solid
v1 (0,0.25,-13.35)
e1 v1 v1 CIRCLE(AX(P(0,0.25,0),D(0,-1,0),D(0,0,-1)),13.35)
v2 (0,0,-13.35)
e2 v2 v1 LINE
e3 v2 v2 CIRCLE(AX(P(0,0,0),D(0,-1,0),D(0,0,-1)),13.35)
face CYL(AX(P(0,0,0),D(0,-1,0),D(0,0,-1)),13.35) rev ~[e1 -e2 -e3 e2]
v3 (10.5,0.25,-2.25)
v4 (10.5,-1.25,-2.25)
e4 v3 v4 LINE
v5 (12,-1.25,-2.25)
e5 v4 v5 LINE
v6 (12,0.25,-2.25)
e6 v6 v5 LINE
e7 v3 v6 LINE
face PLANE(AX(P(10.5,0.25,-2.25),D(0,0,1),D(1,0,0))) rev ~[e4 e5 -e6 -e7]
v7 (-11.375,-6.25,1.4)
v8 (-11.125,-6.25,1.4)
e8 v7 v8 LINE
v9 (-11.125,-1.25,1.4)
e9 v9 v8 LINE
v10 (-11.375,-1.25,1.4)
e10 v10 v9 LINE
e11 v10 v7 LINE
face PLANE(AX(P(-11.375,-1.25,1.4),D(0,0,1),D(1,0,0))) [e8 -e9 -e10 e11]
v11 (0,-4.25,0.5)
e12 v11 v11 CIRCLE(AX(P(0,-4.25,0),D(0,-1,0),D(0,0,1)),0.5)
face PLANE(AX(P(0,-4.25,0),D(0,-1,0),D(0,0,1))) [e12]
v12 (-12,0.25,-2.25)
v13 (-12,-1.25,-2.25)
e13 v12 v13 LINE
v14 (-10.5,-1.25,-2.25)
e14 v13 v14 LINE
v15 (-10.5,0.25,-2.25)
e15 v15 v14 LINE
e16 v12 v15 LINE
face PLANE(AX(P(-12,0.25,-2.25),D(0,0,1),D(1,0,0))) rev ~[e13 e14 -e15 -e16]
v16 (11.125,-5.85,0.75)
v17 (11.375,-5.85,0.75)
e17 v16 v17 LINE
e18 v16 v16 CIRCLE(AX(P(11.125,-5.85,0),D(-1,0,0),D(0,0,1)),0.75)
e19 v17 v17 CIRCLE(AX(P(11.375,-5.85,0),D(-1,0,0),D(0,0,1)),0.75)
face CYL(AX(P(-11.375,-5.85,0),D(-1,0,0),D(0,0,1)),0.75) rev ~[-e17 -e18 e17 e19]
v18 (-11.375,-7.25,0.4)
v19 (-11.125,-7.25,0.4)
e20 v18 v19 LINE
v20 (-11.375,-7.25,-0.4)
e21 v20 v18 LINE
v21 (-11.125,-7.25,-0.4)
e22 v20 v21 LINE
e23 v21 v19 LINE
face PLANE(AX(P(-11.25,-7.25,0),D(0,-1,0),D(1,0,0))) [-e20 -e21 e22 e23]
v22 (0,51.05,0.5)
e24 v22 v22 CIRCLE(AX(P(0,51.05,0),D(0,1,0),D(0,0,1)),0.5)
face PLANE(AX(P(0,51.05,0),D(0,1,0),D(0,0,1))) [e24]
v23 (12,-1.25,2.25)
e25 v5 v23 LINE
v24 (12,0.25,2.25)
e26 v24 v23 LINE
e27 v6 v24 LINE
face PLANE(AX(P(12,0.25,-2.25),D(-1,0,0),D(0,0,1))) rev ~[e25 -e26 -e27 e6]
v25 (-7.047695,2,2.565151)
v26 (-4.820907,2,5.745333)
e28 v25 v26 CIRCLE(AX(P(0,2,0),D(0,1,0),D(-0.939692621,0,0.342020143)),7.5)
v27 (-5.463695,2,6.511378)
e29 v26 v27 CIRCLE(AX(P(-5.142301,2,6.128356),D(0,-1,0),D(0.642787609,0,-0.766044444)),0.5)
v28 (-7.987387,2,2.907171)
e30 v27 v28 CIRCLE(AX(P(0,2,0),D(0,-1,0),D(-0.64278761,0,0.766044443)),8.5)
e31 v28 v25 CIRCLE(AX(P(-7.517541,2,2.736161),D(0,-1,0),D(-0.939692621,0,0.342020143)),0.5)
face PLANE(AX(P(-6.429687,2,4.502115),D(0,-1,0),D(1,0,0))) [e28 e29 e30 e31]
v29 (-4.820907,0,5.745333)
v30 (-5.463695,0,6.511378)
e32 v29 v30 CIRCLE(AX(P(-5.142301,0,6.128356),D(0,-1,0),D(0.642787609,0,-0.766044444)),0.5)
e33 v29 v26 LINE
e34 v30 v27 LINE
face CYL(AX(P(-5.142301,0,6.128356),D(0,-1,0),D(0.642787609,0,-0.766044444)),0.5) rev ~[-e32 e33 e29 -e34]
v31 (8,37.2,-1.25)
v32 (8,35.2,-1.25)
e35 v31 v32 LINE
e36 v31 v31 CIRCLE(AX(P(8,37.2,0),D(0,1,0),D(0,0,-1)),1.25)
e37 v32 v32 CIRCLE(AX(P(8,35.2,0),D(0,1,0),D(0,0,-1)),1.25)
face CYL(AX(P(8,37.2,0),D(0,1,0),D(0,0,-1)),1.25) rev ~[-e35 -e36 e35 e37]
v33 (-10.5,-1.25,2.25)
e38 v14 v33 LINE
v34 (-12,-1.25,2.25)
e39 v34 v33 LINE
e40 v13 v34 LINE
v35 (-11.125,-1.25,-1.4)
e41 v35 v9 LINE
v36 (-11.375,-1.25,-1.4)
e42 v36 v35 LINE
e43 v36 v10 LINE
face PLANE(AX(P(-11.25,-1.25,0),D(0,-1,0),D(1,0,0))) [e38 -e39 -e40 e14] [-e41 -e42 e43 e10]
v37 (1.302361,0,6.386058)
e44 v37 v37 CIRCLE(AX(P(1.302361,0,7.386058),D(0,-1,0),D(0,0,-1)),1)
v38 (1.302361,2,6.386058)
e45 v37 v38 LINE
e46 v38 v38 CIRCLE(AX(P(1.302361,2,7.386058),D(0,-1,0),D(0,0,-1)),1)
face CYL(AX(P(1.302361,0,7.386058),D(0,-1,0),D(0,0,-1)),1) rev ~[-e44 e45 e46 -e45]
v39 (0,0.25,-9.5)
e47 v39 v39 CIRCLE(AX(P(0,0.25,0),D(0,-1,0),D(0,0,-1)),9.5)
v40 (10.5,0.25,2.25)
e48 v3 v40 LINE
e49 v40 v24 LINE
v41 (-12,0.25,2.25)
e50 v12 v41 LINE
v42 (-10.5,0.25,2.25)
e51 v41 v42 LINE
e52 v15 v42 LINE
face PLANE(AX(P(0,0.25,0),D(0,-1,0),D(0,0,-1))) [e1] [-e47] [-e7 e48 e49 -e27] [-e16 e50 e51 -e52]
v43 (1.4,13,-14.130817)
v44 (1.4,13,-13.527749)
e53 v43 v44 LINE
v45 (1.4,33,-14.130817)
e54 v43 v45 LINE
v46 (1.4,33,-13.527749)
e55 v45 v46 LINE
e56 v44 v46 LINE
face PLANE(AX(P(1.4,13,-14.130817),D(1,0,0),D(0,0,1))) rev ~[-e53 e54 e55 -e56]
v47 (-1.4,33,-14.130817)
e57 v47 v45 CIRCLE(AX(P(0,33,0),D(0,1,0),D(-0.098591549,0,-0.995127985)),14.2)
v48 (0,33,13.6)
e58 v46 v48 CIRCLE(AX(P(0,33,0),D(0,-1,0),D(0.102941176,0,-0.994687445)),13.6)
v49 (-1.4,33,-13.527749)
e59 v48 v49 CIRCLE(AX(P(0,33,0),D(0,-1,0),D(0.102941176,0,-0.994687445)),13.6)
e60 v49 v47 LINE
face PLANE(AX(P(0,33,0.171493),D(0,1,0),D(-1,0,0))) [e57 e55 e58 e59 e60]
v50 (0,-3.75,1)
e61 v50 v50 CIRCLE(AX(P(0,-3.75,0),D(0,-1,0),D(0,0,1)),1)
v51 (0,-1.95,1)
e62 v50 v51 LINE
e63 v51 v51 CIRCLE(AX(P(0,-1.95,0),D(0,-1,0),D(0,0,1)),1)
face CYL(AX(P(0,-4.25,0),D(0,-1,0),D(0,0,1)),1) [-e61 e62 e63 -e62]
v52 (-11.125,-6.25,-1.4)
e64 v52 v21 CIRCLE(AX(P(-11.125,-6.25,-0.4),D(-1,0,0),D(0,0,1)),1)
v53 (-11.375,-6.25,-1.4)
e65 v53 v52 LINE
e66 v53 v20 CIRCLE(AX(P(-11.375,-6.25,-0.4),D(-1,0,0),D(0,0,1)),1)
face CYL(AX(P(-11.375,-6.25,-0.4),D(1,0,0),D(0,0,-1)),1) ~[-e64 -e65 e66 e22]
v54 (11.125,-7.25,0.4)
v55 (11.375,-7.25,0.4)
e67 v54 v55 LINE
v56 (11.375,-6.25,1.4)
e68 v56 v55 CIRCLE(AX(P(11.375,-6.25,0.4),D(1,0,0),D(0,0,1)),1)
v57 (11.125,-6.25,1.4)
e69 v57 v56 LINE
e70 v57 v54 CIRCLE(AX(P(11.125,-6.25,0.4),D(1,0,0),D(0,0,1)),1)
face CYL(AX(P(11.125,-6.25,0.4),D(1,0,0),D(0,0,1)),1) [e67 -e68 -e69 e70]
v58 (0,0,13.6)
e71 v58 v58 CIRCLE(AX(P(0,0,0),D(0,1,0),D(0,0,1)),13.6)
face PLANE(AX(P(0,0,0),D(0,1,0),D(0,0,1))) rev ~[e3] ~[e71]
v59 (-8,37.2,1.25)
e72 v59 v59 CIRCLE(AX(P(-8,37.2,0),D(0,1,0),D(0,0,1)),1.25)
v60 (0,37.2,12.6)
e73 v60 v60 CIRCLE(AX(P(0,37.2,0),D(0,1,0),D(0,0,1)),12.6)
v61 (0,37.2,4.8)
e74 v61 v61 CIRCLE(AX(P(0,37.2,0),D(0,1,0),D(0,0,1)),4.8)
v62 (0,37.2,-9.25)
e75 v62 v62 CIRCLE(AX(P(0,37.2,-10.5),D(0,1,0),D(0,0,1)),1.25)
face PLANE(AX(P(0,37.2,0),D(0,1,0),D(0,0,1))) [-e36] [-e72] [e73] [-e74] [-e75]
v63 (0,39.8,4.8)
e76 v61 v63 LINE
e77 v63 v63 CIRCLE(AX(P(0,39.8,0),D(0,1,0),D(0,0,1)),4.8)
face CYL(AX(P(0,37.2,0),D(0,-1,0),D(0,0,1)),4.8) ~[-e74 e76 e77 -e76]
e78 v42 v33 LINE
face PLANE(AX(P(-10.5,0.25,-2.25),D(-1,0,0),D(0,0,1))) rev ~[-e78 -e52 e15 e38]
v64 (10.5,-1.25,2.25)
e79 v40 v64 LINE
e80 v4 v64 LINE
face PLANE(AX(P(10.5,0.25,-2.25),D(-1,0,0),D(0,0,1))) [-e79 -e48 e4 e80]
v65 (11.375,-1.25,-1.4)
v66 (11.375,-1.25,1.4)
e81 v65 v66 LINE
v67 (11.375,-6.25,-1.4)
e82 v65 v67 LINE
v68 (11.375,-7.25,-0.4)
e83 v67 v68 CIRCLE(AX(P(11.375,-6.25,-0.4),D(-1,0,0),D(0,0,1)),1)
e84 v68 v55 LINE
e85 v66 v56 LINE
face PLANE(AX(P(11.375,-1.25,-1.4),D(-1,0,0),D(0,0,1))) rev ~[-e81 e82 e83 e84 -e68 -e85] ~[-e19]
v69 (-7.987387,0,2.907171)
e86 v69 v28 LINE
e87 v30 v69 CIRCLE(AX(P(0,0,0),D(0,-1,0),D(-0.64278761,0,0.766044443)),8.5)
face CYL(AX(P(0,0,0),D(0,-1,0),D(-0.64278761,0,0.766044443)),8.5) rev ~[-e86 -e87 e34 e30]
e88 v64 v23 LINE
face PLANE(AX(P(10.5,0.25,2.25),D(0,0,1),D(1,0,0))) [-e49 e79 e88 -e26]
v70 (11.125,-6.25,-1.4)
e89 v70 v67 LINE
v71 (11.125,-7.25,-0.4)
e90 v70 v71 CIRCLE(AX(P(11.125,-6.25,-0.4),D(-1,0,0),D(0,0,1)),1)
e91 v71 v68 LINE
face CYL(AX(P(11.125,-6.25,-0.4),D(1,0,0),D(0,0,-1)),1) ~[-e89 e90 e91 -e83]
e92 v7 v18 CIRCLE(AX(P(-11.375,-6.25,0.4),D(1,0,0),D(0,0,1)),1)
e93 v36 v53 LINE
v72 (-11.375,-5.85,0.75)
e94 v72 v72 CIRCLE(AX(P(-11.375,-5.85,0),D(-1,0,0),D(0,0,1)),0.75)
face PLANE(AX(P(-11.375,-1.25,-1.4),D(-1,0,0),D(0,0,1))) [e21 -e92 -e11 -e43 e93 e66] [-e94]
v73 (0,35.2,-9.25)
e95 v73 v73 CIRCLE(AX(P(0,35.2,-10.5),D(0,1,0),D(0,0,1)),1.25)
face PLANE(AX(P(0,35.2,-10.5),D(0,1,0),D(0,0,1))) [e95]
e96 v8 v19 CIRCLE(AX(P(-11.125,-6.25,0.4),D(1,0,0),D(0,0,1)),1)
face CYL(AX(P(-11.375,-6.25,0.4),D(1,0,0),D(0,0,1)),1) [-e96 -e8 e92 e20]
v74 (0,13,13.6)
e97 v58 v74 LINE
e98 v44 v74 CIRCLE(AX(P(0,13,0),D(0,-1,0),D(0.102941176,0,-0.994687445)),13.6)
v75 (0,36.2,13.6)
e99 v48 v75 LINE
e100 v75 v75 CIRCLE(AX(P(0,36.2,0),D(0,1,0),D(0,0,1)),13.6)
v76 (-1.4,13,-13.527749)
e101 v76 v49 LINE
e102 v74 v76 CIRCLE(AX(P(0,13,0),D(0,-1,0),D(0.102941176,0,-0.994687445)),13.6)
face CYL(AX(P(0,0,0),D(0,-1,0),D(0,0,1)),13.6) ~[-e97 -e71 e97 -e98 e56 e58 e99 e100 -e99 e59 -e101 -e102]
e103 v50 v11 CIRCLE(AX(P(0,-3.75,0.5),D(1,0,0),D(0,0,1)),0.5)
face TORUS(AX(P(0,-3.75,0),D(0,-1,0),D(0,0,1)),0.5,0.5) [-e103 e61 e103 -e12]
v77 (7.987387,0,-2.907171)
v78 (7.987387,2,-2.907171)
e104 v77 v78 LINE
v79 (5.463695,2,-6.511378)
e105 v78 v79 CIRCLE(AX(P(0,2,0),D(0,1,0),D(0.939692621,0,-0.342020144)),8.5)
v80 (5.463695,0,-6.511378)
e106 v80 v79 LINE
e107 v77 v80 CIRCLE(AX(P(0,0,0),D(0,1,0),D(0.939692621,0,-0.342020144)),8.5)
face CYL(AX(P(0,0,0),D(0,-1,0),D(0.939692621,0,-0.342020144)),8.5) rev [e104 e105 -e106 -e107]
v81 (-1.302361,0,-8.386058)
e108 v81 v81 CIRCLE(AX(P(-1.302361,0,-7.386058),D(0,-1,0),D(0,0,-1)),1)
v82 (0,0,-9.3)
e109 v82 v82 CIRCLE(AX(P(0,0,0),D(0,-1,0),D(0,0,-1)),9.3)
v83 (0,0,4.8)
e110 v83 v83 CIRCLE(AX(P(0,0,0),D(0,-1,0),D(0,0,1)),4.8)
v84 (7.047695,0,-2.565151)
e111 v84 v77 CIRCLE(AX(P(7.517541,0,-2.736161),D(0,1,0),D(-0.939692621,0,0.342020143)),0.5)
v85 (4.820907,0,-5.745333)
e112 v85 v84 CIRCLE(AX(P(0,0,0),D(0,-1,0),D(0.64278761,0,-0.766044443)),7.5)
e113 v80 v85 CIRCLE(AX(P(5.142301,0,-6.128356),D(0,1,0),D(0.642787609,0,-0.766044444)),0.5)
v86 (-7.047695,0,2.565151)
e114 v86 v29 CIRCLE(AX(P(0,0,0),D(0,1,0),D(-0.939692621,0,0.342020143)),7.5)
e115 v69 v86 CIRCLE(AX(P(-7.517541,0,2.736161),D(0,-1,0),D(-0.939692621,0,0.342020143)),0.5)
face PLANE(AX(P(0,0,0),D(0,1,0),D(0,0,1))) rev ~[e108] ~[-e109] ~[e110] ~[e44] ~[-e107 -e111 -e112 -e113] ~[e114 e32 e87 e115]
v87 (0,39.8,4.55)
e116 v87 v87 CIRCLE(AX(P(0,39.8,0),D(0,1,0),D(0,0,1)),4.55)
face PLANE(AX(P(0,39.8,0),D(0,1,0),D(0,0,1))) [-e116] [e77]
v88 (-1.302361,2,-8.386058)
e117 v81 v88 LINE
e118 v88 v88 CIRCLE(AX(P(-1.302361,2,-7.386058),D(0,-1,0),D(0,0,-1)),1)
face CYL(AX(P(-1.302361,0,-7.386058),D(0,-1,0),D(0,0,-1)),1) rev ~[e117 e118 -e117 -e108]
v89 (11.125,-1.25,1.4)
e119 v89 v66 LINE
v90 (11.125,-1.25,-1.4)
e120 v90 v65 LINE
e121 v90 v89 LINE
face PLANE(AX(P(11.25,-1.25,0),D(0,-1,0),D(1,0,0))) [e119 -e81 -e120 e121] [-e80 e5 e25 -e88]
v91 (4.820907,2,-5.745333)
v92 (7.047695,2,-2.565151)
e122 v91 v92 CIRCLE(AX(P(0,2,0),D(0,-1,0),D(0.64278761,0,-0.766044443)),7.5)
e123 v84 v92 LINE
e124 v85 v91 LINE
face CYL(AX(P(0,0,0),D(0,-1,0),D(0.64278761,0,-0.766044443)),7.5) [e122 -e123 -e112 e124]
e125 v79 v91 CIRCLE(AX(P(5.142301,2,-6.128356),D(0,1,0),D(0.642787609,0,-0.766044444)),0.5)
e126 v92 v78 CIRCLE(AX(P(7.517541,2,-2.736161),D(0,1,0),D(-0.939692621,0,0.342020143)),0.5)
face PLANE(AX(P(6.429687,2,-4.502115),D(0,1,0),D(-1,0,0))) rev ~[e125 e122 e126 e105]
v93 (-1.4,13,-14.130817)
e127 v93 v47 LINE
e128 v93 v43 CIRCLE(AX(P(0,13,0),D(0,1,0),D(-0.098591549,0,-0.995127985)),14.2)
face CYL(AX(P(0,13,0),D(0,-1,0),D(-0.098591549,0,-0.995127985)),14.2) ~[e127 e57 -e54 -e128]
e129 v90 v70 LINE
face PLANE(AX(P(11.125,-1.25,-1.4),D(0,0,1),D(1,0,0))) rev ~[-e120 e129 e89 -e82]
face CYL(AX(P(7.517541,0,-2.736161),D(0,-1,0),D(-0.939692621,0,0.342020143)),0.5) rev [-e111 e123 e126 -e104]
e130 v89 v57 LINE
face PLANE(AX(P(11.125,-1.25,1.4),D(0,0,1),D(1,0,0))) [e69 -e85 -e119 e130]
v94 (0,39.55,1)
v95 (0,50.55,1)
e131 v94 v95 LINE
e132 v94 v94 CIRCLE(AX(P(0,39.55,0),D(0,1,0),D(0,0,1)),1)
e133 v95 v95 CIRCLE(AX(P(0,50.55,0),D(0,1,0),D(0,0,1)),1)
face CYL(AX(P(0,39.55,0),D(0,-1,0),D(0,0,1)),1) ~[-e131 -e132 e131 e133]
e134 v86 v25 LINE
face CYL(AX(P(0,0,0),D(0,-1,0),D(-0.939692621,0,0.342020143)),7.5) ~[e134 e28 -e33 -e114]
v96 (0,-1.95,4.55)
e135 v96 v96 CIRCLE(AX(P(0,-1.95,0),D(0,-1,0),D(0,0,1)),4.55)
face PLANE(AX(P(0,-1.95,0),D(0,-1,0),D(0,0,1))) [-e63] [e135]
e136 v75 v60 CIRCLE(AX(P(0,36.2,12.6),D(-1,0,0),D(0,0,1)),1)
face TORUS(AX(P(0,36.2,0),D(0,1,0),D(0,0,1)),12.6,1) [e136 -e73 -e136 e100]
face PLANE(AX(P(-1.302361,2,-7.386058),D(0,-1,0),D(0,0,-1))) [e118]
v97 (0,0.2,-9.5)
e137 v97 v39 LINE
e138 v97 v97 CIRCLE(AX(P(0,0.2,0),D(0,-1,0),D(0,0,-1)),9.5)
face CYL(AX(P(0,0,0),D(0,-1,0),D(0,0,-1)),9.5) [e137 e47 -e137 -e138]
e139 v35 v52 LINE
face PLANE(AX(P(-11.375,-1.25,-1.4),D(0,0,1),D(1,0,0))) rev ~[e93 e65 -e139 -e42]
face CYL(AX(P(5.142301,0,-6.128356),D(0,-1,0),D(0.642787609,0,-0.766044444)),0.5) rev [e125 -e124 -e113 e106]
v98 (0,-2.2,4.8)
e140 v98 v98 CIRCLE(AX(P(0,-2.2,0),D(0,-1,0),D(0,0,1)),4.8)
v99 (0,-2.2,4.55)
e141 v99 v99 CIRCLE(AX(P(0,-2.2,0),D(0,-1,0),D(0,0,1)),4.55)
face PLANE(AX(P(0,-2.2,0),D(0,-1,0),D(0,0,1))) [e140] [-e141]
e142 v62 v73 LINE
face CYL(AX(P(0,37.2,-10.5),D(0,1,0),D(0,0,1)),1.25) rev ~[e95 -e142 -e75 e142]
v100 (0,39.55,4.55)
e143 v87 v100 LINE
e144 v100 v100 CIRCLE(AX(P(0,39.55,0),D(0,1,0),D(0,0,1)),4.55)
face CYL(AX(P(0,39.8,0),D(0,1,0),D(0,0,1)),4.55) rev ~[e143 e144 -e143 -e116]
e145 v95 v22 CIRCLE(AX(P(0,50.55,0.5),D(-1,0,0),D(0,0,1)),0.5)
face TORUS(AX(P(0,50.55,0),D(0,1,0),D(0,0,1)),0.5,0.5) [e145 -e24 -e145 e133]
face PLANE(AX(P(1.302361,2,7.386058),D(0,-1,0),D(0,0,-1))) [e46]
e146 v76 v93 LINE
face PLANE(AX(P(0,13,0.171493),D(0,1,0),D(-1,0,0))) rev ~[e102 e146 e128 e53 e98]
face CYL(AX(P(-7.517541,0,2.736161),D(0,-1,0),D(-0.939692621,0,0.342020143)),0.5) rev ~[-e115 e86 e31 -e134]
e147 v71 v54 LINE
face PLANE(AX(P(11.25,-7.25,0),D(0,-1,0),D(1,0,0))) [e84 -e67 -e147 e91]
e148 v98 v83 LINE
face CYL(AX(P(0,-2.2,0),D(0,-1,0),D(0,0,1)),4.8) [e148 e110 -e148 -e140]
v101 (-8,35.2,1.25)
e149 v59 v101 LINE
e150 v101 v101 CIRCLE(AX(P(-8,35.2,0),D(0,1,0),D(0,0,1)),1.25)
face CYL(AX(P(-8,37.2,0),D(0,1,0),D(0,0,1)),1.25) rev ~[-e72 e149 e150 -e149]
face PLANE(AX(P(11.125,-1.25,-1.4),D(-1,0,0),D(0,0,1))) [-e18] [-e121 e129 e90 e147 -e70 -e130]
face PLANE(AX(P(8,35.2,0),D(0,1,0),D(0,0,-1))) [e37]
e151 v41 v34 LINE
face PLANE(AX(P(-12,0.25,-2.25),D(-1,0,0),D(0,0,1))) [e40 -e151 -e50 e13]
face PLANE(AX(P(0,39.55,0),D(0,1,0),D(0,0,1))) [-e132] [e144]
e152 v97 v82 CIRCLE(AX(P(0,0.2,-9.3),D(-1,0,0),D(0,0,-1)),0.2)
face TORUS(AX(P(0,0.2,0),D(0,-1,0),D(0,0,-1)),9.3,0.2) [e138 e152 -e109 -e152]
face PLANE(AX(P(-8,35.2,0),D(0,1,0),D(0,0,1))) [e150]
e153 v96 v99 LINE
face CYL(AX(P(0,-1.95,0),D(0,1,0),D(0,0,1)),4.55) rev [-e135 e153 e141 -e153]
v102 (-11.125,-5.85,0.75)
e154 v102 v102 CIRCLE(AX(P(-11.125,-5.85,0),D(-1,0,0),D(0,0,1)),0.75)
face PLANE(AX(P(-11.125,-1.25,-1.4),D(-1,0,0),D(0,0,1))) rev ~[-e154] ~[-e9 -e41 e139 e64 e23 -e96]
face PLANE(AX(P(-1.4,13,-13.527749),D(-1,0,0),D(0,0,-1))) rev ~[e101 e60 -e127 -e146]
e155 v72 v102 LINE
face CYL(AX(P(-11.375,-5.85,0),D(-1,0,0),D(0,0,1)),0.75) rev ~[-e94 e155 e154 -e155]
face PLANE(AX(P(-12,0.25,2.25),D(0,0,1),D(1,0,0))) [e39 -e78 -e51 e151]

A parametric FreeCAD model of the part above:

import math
import FreeCAD as App
import Part
import Sketcher


def edges_at(feature, points):
    """Names of the edges that pass closest to the given points."""
    edges = feature.Shape.Edges
    near = lambda p: min(range(len(edges)), key=lambda i: edges[i].distToShape(Part.Vertex(*p))[0])
    return sorted({f"Edge{near(p) + 1}" for p in points})

doc = App.newDocument("Part")
body = doc.addObject("PartDesign::Body", "Body")

# Sketch on XZ plane
sketch1 = body.newObject("Sketcher::SketchObject", "Sketch")
sketch1.AttachmentSupport = (doc.getObject("XZ_Plane"), [""])
sketch1.MapMode = "FlatFace"
sketch1.addGeometry(Part.Circle(App.Vector(0, 0, 0), App.Vector(0, 0, 1), 13.6), False)
sketch1.addConstraint(Sketcher.Constraint("Coincident", 0, 3, -1, 1))
sketch1.addConstraint(Sketcher.Constraint("Diameter", 0, 27.2))
pad1 = body.newObject("PartDesign::Pad", "Pad")
pad1.Profile = sketch1
pad1.Length = 37.2
pad1.Reversed = True

# Sketch on XZ plane
sketch2 = body.newObject("Sketcher::SketchObject", "Sketch001")
sketch2.AttachmentSupport = (doc.getObject("XZ_Plane"), [""])
sketch2.MapMode = "FlatFace"
sketch2.AttachmentOffset = App.Placement(App.Vector(0, 0, -37.2), App.Rotation())
sketch2.addGeometry(Part.Circle(App.Vector(0, 0, 0), App.Vector(0, 0, 1), 4.8), False)
sketch2.addConstraint(Sketcher.Constraint("Coincident", 0, 3, -1, 1))
sketch2.addConstraint(Sketcher.Constraint("Diameter", 0, 9.6))
pad2 = body.newObject("PartDesign::Pad", "Pad001")
pad2.Profile = sketch2
pad2.Length = 2.6
pad2.Reversed = True

# Sketch on XZ plane
sketch3 = body.newObject("Sketcher::SketchObject", "Sketch002")
sketch3.AttachmentSupport = (doc.getObject("XZ_Plane"), [""])
sketch3.MapMode = "FlatFace"
sketch3.AttachmentOffset = App.Placement(App.Vector(0, 0, -39.8), App.Rotation())
sketch3.addGeometry(Part.Circle(App.Vector(0, 0, 0), App.Vector(0, 0, 1), 4.55), False)
sketch3.addConstraint(Sketcher.Constraint("Coincident", 0, 3, -1, 1))
sketch3.addConstraint(Sketcher.Constraint("Diameter", 0, 9.1))
pocket1 = body.newObject("PartDesign::Pocket", "Pocket")
pocket1.Profile = sketch3
pocket1.Length = 0.25
pocket1.Reversed = True

# Sketch on XZ plane
sketch4 = body.newObject("Sketcher::SketchObject", "Sketch003")
sketch4.AttachmentSupport = (doc.getObject("XZ_Plane"), [""])
sketch4.MapMode = "FlatFace"
sketch4.AttachmentOffset = App.Placement(App.Vector(0, 0, -39.55), App.Rotation())
sketch4.addGeometry(Part.Circle(App.Vector(0, 0, 0), App.Vector(0, 0, 1), 1), False)
sketch4.addConstraint(Sketcher.Constraint("Coincident", 0, 3, -1, 1))
sketch4.addConstraint(Sketcher.Constraint("Diameter", 0, 2.0))
pad3 = body.newObject("PartDesign::Pad", "Pad002")
pad3.Profile = sketch4
pad3.Length = 11.5
pad3.Reversed = True
doc.recompute()

fillet = body.newObject("PartDesign::Fillet", "Fillet")
fillet.Base = (pad3, edges_at(pad3, [(0, 51.05, -1)]))
fillet.Radius = 0.5

# Sketch on XZ plane
sketch5 = body.newObject("Sketcher::SketchObject", "Sketch004")
sketch5.AttachmentSupport = (doc.getObject("XZ_Plane"), [""])
sketch5.MapMode = "FlatFace"
sketch5.AttachmentOffset = App.Placement(App.Vector(0, 0, -37.2), App.Rotation())
sketch5.addGeometry(Part.Circle(App.Vector(-8, 0, 0), App.Vector(0, 0, 1), 1.25), False)
sketch5.addGeometry(Part.Circle(App.Vector(8, 0, 0), App.Vector(0, 0, 1), 1.25), False)
sketch5.addConstraint(Sketcher.Constraint("Equal", 0, 1))
sketch5.addConstraint(Sketcher.Constraint("Symmetric", 0, 3, 1, 3, -1, 1))
sketch5.addConstraint(Sketcher.Constraint("PointOnObject", 0, 3, -1))
sketch5.addConstraint(Sketcher.Constraint("Diameter", 0, 2.5))
sketch5.addConstraint(Sketcher.Constraint("DistanceX", 0, 3, -1, 1, 8.0))
pocket2 = body.newObject("PartDesign::Pocket", "Pocket001")
pocket2.Profile = sketch5
pocket2.Length = 2
pocket2.Reversed = True

# Sketch on XZ plane
sketch6 = body.newObject("Sketcher::SketchObject", "Sketch005")
sketch6.AttachmentSupport = (doc.getObject("XZ_Plane"), [""])
sketch6.MapMode = "FlatFace"
sketch6.AttachmentOffset = App.Placement(App.Vector(0, 0, -37.2), App.Rotation())
sketch6.addGeometry(Part.Circle(App.Vector(0, -10.5, 0), App.Vector(0, 0, 1), 1.25), False)
sketch6.addConstraint(Sketcher.Constraint("PointOnObject", 0, 3, -2))
sketch6.addConstraint(Sketcher.Constraint("Diameter", 0, 2.5))
sketch6.addConstraint(Sketcher.Constraint("DistanceY", 0, 3, -1, 1, 10.5))
pocket3 = body.newObject("PartDesign::Pocket", "Pocket002")
pocket3.Profile = sketch6
pocket3.Length = 2
pocket3.Reversed = True

# Sketch on XZ plane
sketch7 = body.newObject("Sketcher::SketchObject", "Sketch006")
sketch7.AttachmentSupport = (doc.getObject("XZ_Plane"), [""])
sketch7.MapMode = "FlatFace"
sketch7.addGeometry(Part.Circle(App.Vector(0, 0, 0), App.Vector(0, 0, 1), 13.35), False)
sketch7.addGeometry(Part.Circle(App.Vector(0, 0, 0), App.Vector(0, 0, 1), 9.5), False)
sketch7.addConstraint(Sketcher.Constraint("Coincident", 0, 3, -1, 1))
sketch7.addConstraint(Sketcher.Constraint("Coincident", 1, 3, -1, 1))
sketch7.addConstraint(Sketcher.Constraint("Diameter", 1, 19.0))
sketch7.addConstraint(Sketcher.Constraint("Diameter", 0, 26.7))
pocket4 = body.newObject("PartDesign::Pocket", "Pocket003")
pocket4.Profile = sketch7
pocket4.Length = 0.25
doc.recompute()

fillet2 = body.newObject("PartDesign::Fillet", "Fillet001")
fillet2.Base = (pocket4, edges_at(pocket4, [(0, 0, 9.5)]))
fillet2.Radius = 0.2

# Sketch on XZ plane
sketch8 = body.newObject("Sketcher::SketchObject", "Sketch007")
sketch8.AttachmentSupport = (doc.getObject("XZ_Plane"), [""])
sketch8.MapMode = "FlatFace"
sketch8.AttachmentOffset = App.Placement(App.Vector(0, 0, 2.2), App.Rotation())
sketch8.addGeometry(Part.Circle(App.Vector(0, 0, 0), App.Vector(0, 0, 1), 4.8), False)
sketch8.addConstraint(Sketcher.Constraint("Coincident", 0, 3, -1, 1))
sketch8.addConstraint(Sketcher.Constraint("Diameter", 0, 9.6))
pad4 = body.newObject("PartDesign::Pad", "Pad003")
pad4.Profile = sketch8
pad4.Length = 2.2
pad4.Reversed = True

# Sketch on XZ plane
sketch9 = body.newObject("Sketcher::SketchObject", "Sketch008")
sketch9.AttachmentSupport = (doc.getObject("XZ_Plane"), [""])
sketch9.MapMode = "FlatFace"
sketch9.AttachmentOffset = App.Placement(App.Vector(0, 0, 1.95), App.Rotation())
sketch9.addGeometry(Part.Circle(App.Vector(0, 0, 0), App.Vector(0, 0, 1), 4.55), False)
sketch9.addConstraint(Sketcher.Constraint("Coincident", 0, 3, -1, 1))
sketch9.addConstraint(Sketcher.Constraint("Diameter", 0, 9.1))
pocket5 = body.newObject("PartDesign::Pocket", "Pocket004")
pocket5.Profile = sketch9
pocket5.Length = 0.25
pocket5.Reversed = True

# Sketch on XZ plane
sketch10 = body.newObject("Sketcher::SketchObject", "Sketch009")
sketch10.AttachmentSupport = (doc.getObject("XZ_Plane"), [""])
sketch10.MapMode = "FlatFace"
sketch10.AttachmentOffset = App.Placement(App.Vector(0, 0, 4.25), App.Rotation())
sketch10.addGeometry(Part.Circle(App.Vector(0, 0, 0), App.Vector(0, 0, 1), 1), False)
sketch10.addConstraint(Sketcher.Constraint("Coincident", 0, 3, -1, 1))
sketch10.addConstraint(Sketcher.Constraint("Diameter", 0, 2.0))
pad5 = body.newObject("PartDesign::Pad", "Pad004")
pad5.Profile = sketch10
pad5.Length = 2.3
pad5.Reversed = True
doc.recompute()

fillet3 = body.newObject("PartDesign::Fillet", "Fillet002")
fillet3.Base = (pad5, edges_at(pad5, [(0, -4.25, -1)]))
fillet3.Radius = 0.5
doc.recompute()

fillet4 = body.newObject("PartDesign::Fillet", "Fillet003")
fillet4.Base = (fillet3, edges_at(fillet3, [(0, 37.2, -13.6)]))
fillet4.Radius = 1

# Sketch on XZ plane
sketch11 = body.newObject("Sketcher::SketchObject", "Sketch010")
sketch11.AttachmentSupport = (doc.getObject("XZ_Plane"), [""])
sketch11.MapMode = "FlatFace"
sketch11.AttachmentOffset = App.Placement(App.Vector(0, 0, -0.25), App.Rotation())
sketch11.addGeometry(Part.LineSegment(App.Vector(-12, 2.25, 0), App.Vector(-12, -2.25, 0)), False)
sketch11.addGeometry(Part.LineSegment(App.Vector(-12, -2.25, 0), App.Vector(-10.5, -2.25, 0)), False)
sketch11.addGeometry(Part.LineSegment(App.Vector(-10.5, -2.25, 0), App.Vector(-10.5, 2.25, 0)), False)
sketch11.addGeometry(Part.LineSegment(App.Vector(-10.5, 2.25, 0), App.Vector(-12, 2.25, 0)), False)
sketch11.addGeometry(Part.LineSegment(App.Vector(10.5, 2.25, 0), App.Vector(10.5, -2.25, 0)), False)
sketch11.addGeometry(Part.LineSegment(App.Vector(10.5, -2.25, 0), App.Vector(12, -2.25, 0)), False)
sketch11.addGeometry(Part.LineSegment(App.Vector(12, -2.25, 0), App.Vector(12, 2.25, 0)), False)
sketch11.addGeometry(Part.LineSegment(App.Vector(12, 2.25, 0), App.Vector(10.5, 2.25, 0)), False)
sketch11.addConstraint(Sketcher.Constraint("Coincident", 0, 2, 1, 1))
sketch11.addConstraint(Sketcher.Constraint("Coincident", 1, 2, 2, 1))
sketch11.addConstraint(Sketcher.Constraint("Coincident", 2, 2, 3, 1))
sketch11.addConstraint(Sketcher.Constraint("Coincident", 3, 2, 0, 1))
sketch11.addConstraint(Sketcher.Constraint("Coincident", 4, 2, 5, 1))
sketch11.addConstraint(Sketcher.Constraint("Coincident", 5, 2, 6, 1))
sketch11.addConstraint(Sketcher.Constraint("Coincident", 6, 2, 7, 1))
sketch11.addConstraint(Sketcher.Constraint("Coincident", 7, 2, 4, 1))
sketch11.addConstraint(Sketcher.Constraint("Vertical", 0))
sketch11.addConstraint(Sketcher.Constraint("Horizontal", 1))
sketch11.addConstraint(Sketcher.Constraint("Vertical", 2))
sketch11.addConstraint(Sketcher.Constraint("Horizontal", 3))
sketch11.addConstraint(Sketcher.Constraint("Vertical", 4))
sketch11.addConstraint(Sketcher.Constraint("Horizontal", 5))
sketch11.addConstraint(Sketcher.Constraint("Vertical", 6))
sketch11.addConstraint(Sketcher.Constraint("Horizontal", 7))
sketch11.addConstraint(Sketcher.Constraint("Symmetric", 2, 2, 4, 2, -1, 1))
sketch11.addConstraint(Sketcher.Constraint("Symmetric", 0, 2, 6, 2, -1, 1))
sketch11.addConstraint(Sketcher.Constraint("Horizontal", 1, 2, 4, 2))
sketch11.addConstraint(Sketcher.Constraint("DistanceX", 1, 1, 1, 2, 1.5))
sketch11.addConstraint(Sketcher.Constraint("DistanceY", 0, 2, 0, 1, 4.5))
sketch11.addConstraint(Sketcher.Constraint("DistanceX", 0, 2, -1, 1, 12.0))
pad6 = body.newObject("PartDesign::Pad", "Pad005")
pad6.Profile = sketch11
pad6.Length = 1.5

# Sketch on XZ plane
sketch12 = body.newObject("Sketcher::SketchObject", "Sketch011")
sketch12.AttachmentSupport = (doc.getObject("XZ_Plane"), [""])
sketch12.MapMode = "FlatFace"
sketch12.AttachmentOffset = App.Placement(App.Vector(0, 0, 1.25), App.Rotation())
sketch12.addGeometry(Part.LineSegment(App.Vector(-11.375, 1.4, 0), App.Vector(-11.375, -1.4, 0)), False)
sketch12.addGeometry(Part.LineSegment(App.Vector(-11.375, -1.4, 0), App.Vector(-11.125, -1.4, 0)), False)
sketch12.addGeometry(Part.LineSegment(App.Vector(-11.125, -1.4, 0), App.Vector(-11.125, 1.4, 0)), False)
sketch12.addGeometry(Part.LineSegment(App.Vector(-11.125, 1.4, 0), App.Vector(-11.375, 1.4, 0)), False)
sketch12.addGeometry(Part.LineSegment(App.Vector(11.125, 1.4, 0), App.Vector(11.125, -1.4, 0)), False)
sketch12.addGeometry(Part.LineSegment(App.Vector(11.125, -1.4, 0), App.Vector(11.375, -1.4, 0)), False)
sketch12.addGeometry(Part.LineSegment(App.Vector(11.375, -1.4, 0), App.Vector(11.375, 1.4, 0)), False)
sketch12.addGeometry(Part.LineSegment(App.Vector(11.375, 1.4, 0), App.Vector(11.125, 1.4, 0)), False)
sketch12.addConstraint(Sketcher.Constraint("Coincident", 0, 2, 1, 1))
sketch12.addConstraint(Sketcher.Constraint("Coincident", 1, 2, 2, 1))
sketch12.addConstraint(Sketcher.Constraint("Coincident", 2, 2, 3, 1))
sketch12.addConstraint(Sketcher.Constraint("Coincident", 3, 2, 0, 1))
sketch12.addConstraint(Sketcher.Constraint("Coincident", 4, 2, 5, 1))
sketch12.addConstraint(Sketcher.Constraint("Coincident", 5, 2, 6, 1))
sketch12.addConstraint(Sketcher.Constraint("Coincident", 6, 2, 7, 1))
sketch12.addConstraint(Sketcher.Constraint("Coincident", 7, 2, 4, 1))
sketch12.addConstraint(Sketcher.Constraint("Vertical", 0))
sketch12.addConstraint(Sketcher.Constraint("Horizontal", 1))
sketch12.addConstraint(Sketcher.Constraint("Vertical", 2))
sketch12.addConstraint(Sketcher.Constraint("Horizontal", 3))
sketch12.addConstraint(Sketcher.Constraint("Vertical", 4))
sketch12.addConstraint(Sketcher.Constraint("Horizontal", 5))
sketch12.addConstraint(Sketcher.Constraint("Vertical", 6))
sketch12.addConstraint(Sketcher.Constraint("Horizontal", 7))
sketch12.addConstraint(Sketcher.Constraint("Symmetric", 2, 2, 4, 2, -1, 1))
sketch12.addConstraint(Sketcher.Constraint("Symmetric", 0, 2, 6, 2, -1, 1))
sketch12.addConstraint(Sketcher.Constraint("Horizontal", 1, 2, 4, 2))
sketch12.addConstraint(Sketcher.Constraint("DistanceY", 0, 2, 0, 1, 2.8))
sketch12.addConstraint(Sketcher.Constraint("DistanceX", 1, 1, 1, 2, 0.25))
sketch12.addConstraint(Sketcher.Constraint("DistanceX", 0, 2, 4, 2, 22.5))
pad7 = body.newObject("PartDesign::Pad", "Pad006")
pad7.Profile = sketch12
pad7.Length = 6

# Sketch on YZ plane
sketch13 = body.newObject("Sketcher::SketchObject", "Sketch012")
sketch13.AttachmentSupport = (doc.getObject("YZ_Plane"), [""])
sketch13.MapMode = "FlatFace"
sketch13.AttachmentOffset = App.Placement(App.Vector(0, 0, -11.375), App.Rotation())
sketch13.addGeometry(Part.Circle(App.Vector(-5.85, 0, 0), App.Vector(0, 0, 1), 0.75), False)
sketch13.addConstraint(Sketcher.Constraint("PointOnObject", 0, 3, -1))
sketch13.addConstraint(Sketcher.Constraint("Diameter", 0, 1.5))
sketch13.addConstraint(Sketcher.Constraint("DistanceX", 0, 3, -1, 1, 5.85))
pocket6 = body.newObject("PartDesign::Pocket", "Pocket005")
pocket6.Profile = sketch13
pocket6.Type = "ThroughAll"
pocket6.Reversed = True
doc.recompute()

fillet5 = body.newObject("PartDesign::Fillet", "Fillet004")
fillet5.Base = (pocket6, edges_at(pocket6, [
    (-11.25, -7.25, 1.4),
    (-11.25, -7.25, -1.4),
    (11.25, -7.25, 1.4),
    (11.25, -7.25, -1.4),
]))
fillet5.Radius = 1

# Sketch on XZ plane
sketch14 = body.newObject("Sketcher::SketchObject", "Sketch013")
sketch14.AttachmentSupport = (doc.getObject("XZ_Plane"), [""])
sketch14.MapMode = "FlatFace"
sketch14.addGeometry(Part.Circle(App.Vector(1.302361, 7.386058, 0), App.Vector(0, 0, 1), 1), False)
sketch14.addGeometry(Part.Circle(App.Vector(-1.302361, -7.386058, 0), App.Vector(0, 0, 1), 1), False)
sketch14.addConstraint(Sketcher.Constraint("Equal", 0, 1))
sketch14.addConstraint(Sketcher.Constraint("Symmetric", 0, 3, 1, 3, -1, 1))
sketch14.addConstraint(Sketcher.Constraint("Diameter", 0, 2.0))
sketch14.addConstraint(Sketcher.Constraint("DistanceX", -1, 1, 0, 3, 1.302361))
sketch14.addConstraint(Sketcher.Constraint("DistanceY", -1, 1, 0, 3, 7.386058))
pocket7 = body.newObject("PartDesign::Pocket", "Pocket006")
pocket7.Profile = sketch14
pocket7.Length = 2

# Sketch on XZ plane
sketch15 = body.newObject("Sketcher::SketchObject", "Sketch014")
sketch15.AttachmentSupport = (doc.getObject("XZ_Plane"), [""])
sketch15.MapMode = "FlatFace"
sketch15.addGeometry(Part.ArcOfCircle(Part.Circle(App.Vector(0, 0, 0), App.Vector(0, 0, 1), 8.5), math.radians(130), math.radians(160)), False)
sketch15.addGeometry(Part.ArcOfCircle(Part.Circle(App.Vector(-7.517541, 2.736161, 0), App.Vector(0, 0, 1), 0.5), math.radians(160), math.radians(340)), False)
sketch15.addGeometry(Part.ArcOfCircle(Part.Circle(App.Vector(0, 0, 0), App.Vector(0, 0, 1), 7.5), math.radians(130), math.radians(160)), False)
sketch15.addGeometry(Part.ArcOfCircle(Part.Circle(App.Vector(-5.142301, 6.128356, 0), App.Vector(0, 0, 1), 0.5), math.radians(-50), math.radians(130)), False)
sketch15.addGeometry(Part.ArcOfCircle(Part.Circle(App.Vector(0, 0, 0), App.Vector(0, 0, 1), 7.5), math.radians(-50), math.radians(-20)), False)
sketch15.addGeometry(Part.ArcOfCircle(Part.Circle(App.Vector(5.142301, -6.128356, 0), App.Vector(0, 0, 1), 0.5), math.radians(130), math.radians(310)), False)
sketch15.addGeometry(Part.ArcOfCircle(Part.Circle(App.Vector(0, 0, 0), App.Vector(0, 0, 1), 8.5), math.radians(-50), math.radians(-20)), False)
sketch15.addGeometry(Part.ArcOfCircle(Part.Circle(App.Vector(7.517541, -2.736161, 0), App.Vector(0, 0, 1), 0.5), math.radians(-20), math.radians(160)), False)
sketch15.addConstraint(Sketcher.Constraint("Tangent", 0, 2, 1, 1))
sketch15.addConstraint(Sketcher.Constraint("Tangent", 1, 2, 2, 2))
sketch15.addConstraint(Sketcher.Constraint("Tangent", 2, 1, 3, 1))
sketch15.addConstraint(Sketcher.Constraint("Tangent", 3, 2, 0, 1))
sketch15.addConstraint(Sketcher.Constraint("Tangent", 4, 1, 5, 1))
sketch15.addConstraint(Sketcher.Constraint("Tangent", 5, 2, 6, 1))
sketch15.addConstraint(Sketcher.Constraint("Tangent", 6, 2, 7, 1))
sketch15.addConstraint(Sketcher.Constraint("Tangent", 7, 2, 4, 2))
sketch15.addConstraint(Sketcher.Constraint("Coincident", 0, 3, -1, 1))
sketch15.addConstraint(Sketcher.Constraint("Coincident", 2, 3, -1, 1))
sketch15.addConstraint(Sketcher.Constraint("Coincident", 4, 3, -1, 1))
sketch15.addConstraint(Sketcher.Constraint("Coincident", 6, 3, -1, 1))
sketch15.addConstraint(Sketcher.Constraint("Equal", 2, 4))
sketch15.addConstraint(Sketcher.Constraint("Equal", 3, 5))
sketch15.addConstraint(Sketcher.Constraint("Radius", 0, 8.5))
sketch15.addConstraint(Sketcher.Constraint("Radius", 1, 0.5))
sketch15.addConstraint(Sketcher.Constraint("DistanceX", 1, 2, 3, 2, 1.584))
sketch15.addConstraint(Sketcher.Constraint("DistanceX", 5, 2, 7, 2, 1.584))
sketch15.addConstraint(Sketcher.Constraint("DistanceX", 3, 3, -1, 1, 5.142301))
sketch15.addConstraint(Sketcher.Constraint("DistanceX", -1, 1, 5, 3, 5.142301))
pocket8 = body.newObject("PartDesign::Pocket", "Pocket007")
pocket8.Profile = sketch15
pocket8.Length = 2

# Sketch on XZ plane
sketch16 = body.newObject("Sketcher::SketchObject", "Sketch015")
sketch16.AttachmentSupport = (doc.getObject("XZ_Plane"), [""])
sketch16.MapMode = "FlatFace"
sketch16.AttachmentOffset = App.Placement(App.Vector(0, 0, -13), App.Rotation())
sketch16.addGeometry(Part.LineSegment(App.Vector(-1.4, -14.130817, 0), App.Vector(-1.4, -13.527749, 0)), False)
sketch16.addGeometry(Part.ArcOfCircle(Part.Circle(App.Vector(0, 0, 0), App.Vector(0, 0, 1), 13.6), math.radians(-84.091438), math.radians(264.091438)), False)
sketch16.addGeometry(Part.LineSegment(App.Vector(1.4, -13.527749, 0), App.Vector(1.4, -14.130817, 0)), False)
sketch16.addGeometry(Part.ArcOfCircle(Part.Circle(App.Vector(0, 0, 0), App.Vector(0, 0, 1), 14.2), math.radians(-84.341929), math.radians(264.341929)), False)
sketch16.addConstraint(Sketcher.Constraint("Coincident", 0, 2, 1, 2))
sketch16.addConstraint(Sketcher.Constraint("Coincident", 1, 1, 2, 1))
sketch16.addConstraint(Sketcher.Constraint("Coincident", 2, 2, 3, 1))
sketch16.addConstraint(Sketcher.Constraint("Coincident", 3, 2, 0, 1))
sketch16.addConstraint(Sketcher.Constraint("Vertical", 0))
sketch16.addConstraint(Sketcher.Constraint("Vertical", 2))
sketch16.addConstraint(Sketcher.Constraint("Coincident", 1, 3, -1, 1))
sketch16.addConstraint(Sketcher.Constraint("Coincident", 3, 3, -1, 1))
sketch16.addConstraint(Sketcher.Constraint("Horizontal", 0, 2, 1, 1))
sketch16.addConstraint(Sketcher.Constraint("Radius", 1, 13.6))
sketch16.addConstraint(Sketcher.Constraint("Radius", 3, 14.2))
sketch16.addConstraint(Sketcher.Constraint("DistanceX", 0, 2, -1, 1, 1.4))
pad8 = body.newObject("PartDesign::Pad", "Pad007")
pad8.Profile = sketch16
pad8.Length = 20
pad8.Reversed = True

doc.recompute()
